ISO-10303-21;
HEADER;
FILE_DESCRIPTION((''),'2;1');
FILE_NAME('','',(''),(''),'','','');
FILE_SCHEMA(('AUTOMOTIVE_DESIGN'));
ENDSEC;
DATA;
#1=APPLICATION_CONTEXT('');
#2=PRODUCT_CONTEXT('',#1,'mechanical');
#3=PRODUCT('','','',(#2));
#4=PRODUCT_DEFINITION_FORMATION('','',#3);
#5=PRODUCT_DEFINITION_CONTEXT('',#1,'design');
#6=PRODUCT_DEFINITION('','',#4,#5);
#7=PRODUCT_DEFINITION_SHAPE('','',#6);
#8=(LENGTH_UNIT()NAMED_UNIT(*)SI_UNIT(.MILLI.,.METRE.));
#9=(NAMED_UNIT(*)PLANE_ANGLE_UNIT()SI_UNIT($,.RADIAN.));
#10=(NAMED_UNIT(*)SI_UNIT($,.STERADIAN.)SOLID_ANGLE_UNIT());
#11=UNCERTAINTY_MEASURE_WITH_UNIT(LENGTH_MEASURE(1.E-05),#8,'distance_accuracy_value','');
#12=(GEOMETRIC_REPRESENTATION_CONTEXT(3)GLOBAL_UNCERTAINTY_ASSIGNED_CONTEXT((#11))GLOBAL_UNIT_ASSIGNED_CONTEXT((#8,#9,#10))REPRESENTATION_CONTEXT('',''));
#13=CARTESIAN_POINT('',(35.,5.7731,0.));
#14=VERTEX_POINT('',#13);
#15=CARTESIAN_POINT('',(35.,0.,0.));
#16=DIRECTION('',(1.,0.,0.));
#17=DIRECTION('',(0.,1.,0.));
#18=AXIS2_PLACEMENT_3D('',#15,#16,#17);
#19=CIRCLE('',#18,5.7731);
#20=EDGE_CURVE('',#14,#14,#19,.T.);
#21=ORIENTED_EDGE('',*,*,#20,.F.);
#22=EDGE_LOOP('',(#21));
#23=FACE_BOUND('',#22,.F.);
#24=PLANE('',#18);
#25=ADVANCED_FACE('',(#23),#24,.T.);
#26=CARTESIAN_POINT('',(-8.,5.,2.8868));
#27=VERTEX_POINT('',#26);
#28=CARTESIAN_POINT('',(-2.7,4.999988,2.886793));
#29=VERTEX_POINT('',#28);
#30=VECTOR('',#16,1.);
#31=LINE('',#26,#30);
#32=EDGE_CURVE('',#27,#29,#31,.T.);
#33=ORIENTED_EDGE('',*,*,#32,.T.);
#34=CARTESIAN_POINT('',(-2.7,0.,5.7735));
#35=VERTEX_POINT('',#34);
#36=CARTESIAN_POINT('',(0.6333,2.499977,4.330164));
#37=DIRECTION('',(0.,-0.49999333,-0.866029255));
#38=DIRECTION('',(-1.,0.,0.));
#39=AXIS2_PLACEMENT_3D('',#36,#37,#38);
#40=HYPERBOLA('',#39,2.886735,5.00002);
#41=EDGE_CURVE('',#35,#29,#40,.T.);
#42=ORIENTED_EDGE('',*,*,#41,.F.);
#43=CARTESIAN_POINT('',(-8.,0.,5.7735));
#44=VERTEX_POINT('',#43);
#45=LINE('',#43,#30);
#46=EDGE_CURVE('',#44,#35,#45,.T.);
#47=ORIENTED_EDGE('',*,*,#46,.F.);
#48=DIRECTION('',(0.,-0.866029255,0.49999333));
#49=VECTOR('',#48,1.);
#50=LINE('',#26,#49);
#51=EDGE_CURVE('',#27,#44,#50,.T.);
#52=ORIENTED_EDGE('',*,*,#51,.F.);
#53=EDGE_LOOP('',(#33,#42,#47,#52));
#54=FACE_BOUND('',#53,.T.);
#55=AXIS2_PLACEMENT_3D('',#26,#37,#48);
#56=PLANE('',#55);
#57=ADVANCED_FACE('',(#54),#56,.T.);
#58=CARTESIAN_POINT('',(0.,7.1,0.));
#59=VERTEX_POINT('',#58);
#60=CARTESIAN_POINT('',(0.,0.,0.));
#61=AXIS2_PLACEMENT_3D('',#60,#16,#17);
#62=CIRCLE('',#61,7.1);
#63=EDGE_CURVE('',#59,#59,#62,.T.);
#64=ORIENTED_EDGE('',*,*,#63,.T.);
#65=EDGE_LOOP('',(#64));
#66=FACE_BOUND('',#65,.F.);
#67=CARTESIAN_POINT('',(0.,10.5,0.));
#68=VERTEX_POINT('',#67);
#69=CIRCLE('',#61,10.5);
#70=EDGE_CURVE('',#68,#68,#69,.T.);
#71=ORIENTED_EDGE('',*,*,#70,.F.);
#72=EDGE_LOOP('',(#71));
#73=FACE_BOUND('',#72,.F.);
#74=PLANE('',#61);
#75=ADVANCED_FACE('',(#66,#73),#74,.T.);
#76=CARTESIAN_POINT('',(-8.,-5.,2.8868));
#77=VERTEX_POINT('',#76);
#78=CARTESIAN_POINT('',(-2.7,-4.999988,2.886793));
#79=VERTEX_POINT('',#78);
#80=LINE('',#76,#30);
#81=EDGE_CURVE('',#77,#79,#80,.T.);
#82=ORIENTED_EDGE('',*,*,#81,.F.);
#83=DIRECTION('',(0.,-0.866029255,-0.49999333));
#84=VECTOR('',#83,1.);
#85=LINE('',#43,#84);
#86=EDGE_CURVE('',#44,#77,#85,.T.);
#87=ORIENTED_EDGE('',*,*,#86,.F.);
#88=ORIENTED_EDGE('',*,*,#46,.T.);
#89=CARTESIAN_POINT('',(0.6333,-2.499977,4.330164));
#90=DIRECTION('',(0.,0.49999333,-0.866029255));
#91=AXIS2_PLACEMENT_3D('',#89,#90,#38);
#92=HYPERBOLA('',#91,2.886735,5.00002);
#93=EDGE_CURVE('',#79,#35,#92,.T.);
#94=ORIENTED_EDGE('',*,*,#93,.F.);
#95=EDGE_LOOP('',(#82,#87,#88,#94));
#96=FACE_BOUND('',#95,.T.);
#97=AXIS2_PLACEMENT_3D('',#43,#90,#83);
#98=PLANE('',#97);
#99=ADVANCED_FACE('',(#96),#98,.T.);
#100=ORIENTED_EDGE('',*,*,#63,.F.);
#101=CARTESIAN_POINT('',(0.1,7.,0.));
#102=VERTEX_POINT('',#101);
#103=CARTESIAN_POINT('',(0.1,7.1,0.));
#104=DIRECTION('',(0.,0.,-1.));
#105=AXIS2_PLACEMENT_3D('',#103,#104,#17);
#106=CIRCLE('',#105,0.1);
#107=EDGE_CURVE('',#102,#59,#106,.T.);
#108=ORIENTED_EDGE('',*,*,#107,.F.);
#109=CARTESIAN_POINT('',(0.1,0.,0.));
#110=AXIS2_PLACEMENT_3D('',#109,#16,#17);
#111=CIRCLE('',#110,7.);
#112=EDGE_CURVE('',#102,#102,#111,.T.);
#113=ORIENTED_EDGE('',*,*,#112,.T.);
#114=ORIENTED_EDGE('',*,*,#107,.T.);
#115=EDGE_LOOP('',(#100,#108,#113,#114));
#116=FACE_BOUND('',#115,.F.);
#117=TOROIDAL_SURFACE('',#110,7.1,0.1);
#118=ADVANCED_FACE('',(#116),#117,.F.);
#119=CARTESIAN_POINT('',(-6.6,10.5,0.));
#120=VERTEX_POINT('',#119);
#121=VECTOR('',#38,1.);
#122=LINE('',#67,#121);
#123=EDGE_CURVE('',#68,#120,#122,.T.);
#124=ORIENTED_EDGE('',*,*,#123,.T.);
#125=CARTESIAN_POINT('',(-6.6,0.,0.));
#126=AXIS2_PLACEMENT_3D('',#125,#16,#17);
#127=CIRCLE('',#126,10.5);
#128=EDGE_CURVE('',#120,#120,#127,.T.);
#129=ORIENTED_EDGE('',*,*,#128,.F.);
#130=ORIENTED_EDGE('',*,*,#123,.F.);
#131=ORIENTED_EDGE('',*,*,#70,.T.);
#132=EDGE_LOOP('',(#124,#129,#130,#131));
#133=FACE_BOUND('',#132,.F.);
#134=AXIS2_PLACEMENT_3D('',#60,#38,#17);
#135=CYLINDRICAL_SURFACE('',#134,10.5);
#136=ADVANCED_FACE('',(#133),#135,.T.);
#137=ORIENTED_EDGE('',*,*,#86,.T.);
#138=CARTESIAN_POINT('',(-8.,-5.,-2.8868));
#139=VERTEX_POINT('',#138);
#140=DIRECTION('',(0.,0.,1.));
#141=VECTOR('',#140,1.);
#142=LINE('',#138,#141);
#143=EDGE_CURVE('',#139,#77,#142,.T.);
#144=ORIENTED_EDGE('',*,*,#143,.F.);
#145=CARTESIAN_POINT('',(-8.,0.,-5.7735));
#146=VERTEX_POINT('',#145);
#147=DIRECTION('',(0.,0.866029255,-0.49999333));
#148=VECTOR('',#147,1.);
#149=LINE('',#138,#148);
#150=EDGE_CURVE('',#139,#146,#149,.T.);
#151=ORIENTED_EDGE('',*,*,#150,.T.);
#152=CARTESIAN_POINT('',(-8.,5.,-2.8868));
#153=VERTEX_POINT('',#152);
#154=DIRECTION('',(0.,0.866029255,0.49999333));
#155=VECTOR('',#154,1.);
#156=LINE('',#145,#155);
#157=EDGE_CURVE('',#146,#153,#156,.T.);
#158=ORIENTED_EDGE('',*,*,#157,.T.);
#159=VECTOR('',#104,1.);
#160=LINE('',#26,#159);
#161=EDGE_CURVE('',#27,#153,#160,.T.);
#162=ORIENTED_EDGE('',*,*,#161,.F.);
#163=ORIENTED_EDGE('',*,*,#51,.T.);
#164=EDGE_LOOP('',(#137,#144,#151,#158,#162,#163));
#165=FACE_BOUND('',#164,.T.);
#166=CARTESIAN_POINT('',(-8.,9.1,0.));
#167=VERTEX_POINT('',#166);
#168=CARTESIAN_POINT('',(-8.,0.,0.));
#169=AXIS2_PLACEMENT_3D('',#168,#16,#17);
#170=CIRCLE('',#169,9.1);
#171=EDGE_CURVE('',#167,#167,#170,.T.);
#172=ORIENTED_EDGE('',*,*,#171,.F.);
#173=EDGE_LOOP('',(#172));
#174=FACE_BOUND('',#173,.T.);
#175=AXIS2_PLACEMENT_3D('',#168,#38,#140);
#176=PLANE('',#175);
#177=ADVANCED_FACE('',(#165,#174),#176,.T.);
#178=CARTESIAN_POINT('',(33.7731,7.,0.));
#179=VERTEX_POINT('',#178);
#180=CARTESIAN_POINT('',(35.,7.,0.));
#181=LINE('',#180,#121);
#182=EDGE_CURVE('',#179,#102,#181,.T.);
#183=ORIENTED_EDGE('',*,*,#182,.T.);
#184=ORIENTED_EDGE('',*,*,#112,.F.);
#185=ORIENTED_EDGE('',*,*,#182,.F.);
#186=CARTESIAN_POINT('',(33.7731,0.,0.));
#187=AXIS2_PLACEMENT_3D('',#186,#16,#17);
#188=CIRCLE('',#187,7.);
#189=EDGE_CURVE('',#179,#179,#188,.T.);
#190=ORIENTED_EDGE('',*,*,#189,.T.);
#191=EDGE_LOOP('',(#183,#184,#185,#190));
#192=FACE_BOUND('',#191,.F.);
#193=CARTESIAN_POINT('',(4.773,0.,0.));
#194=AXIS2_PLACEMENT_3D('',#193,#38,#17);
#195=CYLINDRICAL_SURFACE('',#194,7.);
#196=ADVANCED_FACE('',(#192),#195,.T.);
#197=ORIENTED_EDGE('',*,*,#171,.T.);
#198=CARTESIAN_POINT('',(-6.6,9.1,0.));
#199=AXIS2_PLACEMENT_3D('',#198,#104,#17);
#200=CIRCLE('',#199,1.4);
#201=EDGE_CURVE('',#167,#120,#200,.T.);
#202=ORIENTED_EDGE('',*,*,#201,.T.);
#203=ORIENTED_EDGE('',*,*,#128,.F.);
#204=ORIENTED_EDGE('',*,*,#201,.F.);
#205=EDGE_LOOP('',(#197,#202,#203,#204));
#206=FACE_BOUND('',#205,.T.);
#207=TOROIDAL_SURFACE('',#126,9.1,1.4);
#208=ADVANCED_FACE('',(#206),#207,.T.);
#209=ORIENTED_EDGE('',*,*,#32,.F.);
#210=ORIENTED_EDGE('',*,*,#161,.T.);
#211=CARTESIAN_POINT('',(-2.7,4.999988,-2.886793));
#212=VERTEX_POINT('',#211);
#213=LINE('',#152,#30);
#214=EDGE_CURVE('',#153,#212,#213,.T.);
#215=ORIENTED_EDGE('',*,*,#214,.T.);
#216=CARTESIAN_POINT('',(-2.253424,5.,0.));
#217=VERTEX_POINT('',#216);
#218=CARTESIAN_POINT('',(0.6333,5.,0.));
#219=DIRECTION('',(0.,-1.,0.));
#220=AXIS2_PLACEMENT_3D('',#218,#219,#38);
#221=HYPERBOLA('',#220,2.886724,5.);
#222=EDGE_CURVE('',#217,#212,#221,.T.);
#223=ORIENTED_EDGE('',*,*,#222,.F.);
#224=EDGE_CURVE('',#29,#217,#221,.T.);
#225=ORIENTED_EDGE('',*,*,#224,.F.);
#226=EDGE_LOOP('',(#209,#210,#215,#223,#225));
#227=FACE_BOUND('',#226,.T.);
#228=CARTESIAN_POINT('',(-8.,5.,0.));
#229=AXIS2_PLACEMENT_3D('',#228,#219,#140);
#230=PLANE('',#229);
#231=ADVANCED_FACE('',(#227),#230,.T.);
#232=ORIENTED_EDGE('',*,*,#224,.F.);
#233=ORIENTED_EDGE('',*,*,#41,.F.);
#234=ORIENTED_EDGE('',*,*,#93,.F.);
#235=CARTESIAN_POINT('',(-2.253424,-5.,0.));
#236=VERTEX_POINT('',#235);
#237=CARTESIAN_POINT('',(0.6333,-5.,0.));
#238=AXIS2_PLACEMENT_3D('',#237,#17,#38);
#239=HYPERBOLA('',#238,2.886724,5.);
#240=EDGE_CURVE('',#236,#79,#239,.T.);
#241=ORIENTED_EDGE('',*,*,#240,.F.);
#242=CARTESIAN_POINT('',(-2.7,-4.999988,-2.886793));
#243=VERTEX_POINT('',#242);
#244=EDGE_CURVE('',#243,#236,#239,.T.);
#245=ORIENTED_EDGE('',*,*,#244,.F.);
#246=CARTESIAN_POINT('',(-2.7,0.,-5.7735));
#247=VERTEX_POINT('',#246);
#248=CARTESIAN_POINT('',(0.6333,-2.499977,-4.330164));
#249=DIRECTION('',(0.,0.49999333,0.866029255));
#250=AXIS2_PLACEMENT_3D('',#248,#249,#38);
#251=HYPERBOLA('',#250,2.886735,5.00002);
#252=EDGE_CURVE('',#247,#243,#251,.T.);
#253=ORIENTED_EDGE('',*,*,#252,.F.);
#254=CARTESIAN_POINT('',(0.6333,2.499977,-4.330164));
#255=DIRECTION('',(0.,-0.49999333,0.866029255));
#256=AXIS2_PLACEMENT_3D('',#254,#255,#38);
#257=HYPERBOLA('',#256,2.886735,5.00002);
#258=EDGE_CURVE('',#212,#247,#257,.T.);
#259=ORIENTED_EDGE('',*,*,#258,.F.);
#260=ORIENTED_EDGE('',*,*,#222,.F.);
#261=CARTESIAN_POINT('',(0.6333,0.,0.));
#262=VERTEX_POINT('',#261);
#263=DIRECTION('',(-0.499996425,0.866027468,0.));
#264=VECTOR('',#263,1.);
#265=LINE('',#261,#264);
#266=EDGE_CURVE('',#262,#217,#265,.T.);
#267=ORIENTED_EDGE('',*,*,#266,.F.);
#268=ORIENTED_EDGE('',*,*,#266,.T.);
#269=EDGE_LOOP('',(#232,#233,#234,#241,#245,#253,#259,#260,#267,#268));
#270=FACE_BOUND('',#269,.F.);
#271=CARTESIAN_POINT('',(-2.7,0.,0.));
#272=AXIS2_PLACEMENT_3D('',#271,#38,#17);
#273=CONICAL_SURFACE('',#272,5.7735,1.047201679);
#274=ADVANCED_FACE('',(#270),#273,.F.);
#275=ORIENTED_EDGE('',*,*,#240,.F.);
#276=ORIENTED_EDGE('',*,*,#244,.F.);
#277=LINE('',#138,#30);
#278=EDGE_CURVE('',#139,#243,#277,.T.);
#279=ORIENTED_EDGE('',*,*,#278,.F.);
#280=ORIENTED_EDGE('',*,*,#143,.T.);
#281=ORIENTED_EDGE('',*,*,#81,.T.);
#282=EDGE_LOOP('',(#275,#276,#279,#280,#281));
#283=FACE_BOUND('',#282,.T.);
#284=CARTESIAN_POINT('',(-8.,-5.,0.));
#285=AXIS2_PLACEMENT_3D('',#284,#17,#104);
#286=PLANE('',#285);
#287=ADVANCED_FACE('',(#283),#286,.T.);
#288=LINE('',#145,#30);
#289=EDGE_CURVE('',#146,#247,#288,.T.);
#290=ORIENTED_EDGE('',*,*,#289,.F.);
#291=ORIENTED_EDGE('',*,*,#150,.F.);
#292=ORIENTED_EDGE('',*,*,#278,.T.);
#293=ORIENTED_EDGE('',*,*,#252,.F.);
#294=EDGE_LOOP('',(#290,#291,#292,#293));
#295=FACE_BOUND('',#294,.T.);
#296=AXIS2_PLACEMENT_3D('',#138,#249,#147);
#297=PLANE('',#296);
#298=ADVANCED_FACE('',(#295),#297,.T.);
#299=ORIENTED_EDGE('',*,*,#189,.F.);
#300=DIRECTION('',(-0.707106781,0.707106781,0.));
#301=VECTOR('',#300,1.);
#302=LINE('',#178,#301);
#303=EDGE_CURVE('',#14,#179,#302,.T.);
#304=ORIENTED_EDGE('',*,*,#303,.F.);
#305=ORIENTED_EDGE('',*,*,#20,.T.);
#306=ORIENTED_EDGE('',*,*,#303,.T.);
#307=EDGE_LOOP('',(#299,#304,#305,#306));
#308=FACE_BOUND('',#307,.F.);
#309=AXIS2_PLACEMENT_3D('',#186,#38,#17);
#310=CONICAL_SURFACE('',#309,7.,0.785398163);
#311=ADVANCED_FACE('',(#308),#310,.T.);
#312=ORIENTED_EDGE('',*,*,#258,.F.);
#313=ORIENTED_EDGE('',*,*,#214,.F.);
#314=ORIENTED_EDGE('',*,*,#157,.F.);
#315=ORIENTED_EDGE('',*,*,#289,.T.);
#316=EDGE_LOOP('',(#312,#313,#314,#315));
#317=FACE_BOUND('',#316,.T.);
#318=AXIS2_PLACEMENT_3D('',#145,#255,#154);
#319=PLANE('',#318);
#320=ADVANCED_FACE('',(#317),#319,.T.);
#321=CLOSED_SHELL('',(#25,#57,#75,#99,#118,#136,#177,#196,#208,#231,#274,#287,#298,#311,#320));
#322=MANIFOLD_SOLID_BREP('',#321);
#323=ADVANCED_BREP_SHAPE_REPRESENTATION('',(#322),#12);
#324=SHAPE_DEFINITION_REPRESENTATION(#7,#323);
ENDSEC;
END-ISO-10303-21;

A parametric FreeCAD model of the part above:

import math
import FreeCAD as App
import Part
import Sketcher
Q = App.Units.Quantity


def edges_at(feature, points):
    """Names of the edges that pass closest to the given points."""
    edges = feature.Shape.Edges
    near = lambda p: min(range(len(edges)), key=lambda i: edges[i].distToShape(Part.Vertex(*p))[0])
    return sorted({f"Edge{near(p) + 1}" for p in points})


def add_polygon(sketch, points):
    """Adds a closed chain of lines whose ends are joined by coincident constraints."""
    first, n = sketch.GeometryCount, len(points)
    for a, b in zip(points, points[1:] + points[:1]):
        sketch.addGeometry(Part.LineSegment(App.Vector(*a, 0), App.Vector(*b, 0)), False)
    for i in range(n):
        sketch.addConstraint(Sketcher.Constraint("Coincident", first + i, 2, first + (i + 1) % n, 1))

doc = App.newDocument("Part")
body = doc.addObject("PartDesign::Body", "Body")

# Sketch on XY plane
sketch1 = body.newObject("Sketcher::SketchObject", "Sketch")
sketch1.AttachmentSupport = (doc.getObject("XY_Plane"), [""])
sketch1.MapMode = "FlatFace"
add_polygon(sketch1, [(0.6, 0), (35, 0), (35, 7), (0, 7), (0, 10.5), (-8, 10.5), (-8, 5.8), (-2.7, 5.8)])  # lines 0-7
sketch1.addConstraint([
    Sketcher.Constraint("Horizontal", 0),
    Sketcher.Constraint("Vertical", 1),
    Sketcher.Constraint("Horizontal", 2),
    Sketcher.Constraint("Vertical", 3),
    Sketcher.Constraint("Horizontal", 4),
    Sketcher.Constraint("Vertical", 5),
    Sketcher.Constraint("Horizontal", 6),
    Sketcher.Constraint("PointOnObject", 0, 2, -1),
    Sketcher.Constraint("PointOnObject", 2, 2, -2),
    Sketcher.Constraint("DistanceX", 2, 2, 2, 1, Q("35 mm")),
    Sketcher.Constraint("DistanceX", 4, 2, 4, 1, Q("8 mm")),
    Sketcher.Constraint("Angle", 7, Q("-60.0002 deg")),
    Sketcher.Constraint("DistanceX", 6, 1, 6, 2, Q("5.3 mm")),
    Sketcher.Constraint("DistanceY", 1, 1, 1, 2, Q("7 mm")),
    Sketcher.Constraint("DistanceY", 3, 1, 3, 2, Q("3.5 mm")),
    Sketcher.Constraint("DistanceY", 5, 2, 2, 2, Q("1.2265 mm")),
])
revolution = body.newObject("PartDesign::Revolution", "Revolution")
revolution.Profile = sketch1
revolution.ReferenceAxis = (sketch1, ["H_Axis"])
revolution.Angle = 360

# Sketch on YZ plane
sketch2 = body.newObject("Sketcher::SketchObject", "Sketch001")
sketch2.AttachmentSupport = (doc.getObject("YZ_Plane"), [""])
sketch2.MapMode = "FlatFace"
sketch2.AttachmentOffset = App.Placement(App.Vector(0, 0, -8), App.Rotation())
sketch2.addGeometry([
    Part.LineSegment(App.Vector(5, 3, 0), App.Vector(0, 6, 0)),  # 0
    Part.ArcOfCircle(Part.Circle(App.Vector(0, 0, 0), App.Vector(0, 0, 1), 6), math.radians(30), math.radians(90)),  # 1
    Part.ArcOfCircle(Part.Circle(App.Vector(0, 0, 0), App.Vector(0, 0, 1), 6), math.radians(90), math.radians(150)),  # 2
    Part.LineSegment(App.Vector(0, 6, 0), App.Vector(-5, 3, 0)),  # 3
    Part.ArcOfCircle(Part.Circle(App.Vector(0, 0, 0), App.Vector(0, 0, 1), 6), math.radians(-30), math.radians(30)),  # 4
    Part.LineSegment(App.Vector(5, 3, 0), App.Vector(5, -3, 0)),  # 5
    Part.LineSegment(App.Vector(-5, 3, 0), App.Vector(-5, -3, 0)),  # 6
    Part.ArcOfCircle(Part.Circle(App.Vector(0, 0, 0), App.Vector(0, 0, 1), 6), math.radians(150), math.radians(210)),  # 7
    Part.LineSegment(App.Vector(-5, -3, 0), App.Vector(0, -6, 0)),  # 8
    Part.ArcOfCircle(Part.Circle(App.Vector(0, 0, 0), App.Vector(0, 0, 1), 6), math.radians(-150), math.radians(-90)),  # 9
    Part.ArcOfCircle(Part.Circle(App.Vector(0, 0, 0), App.Vector(0, 0, 1), 6), math.radians(-90), math.radians(-30)),  # 10
    Part.LineSegment(App.Vector(0, -6, 0), App.Vector(5, -3, 0)),  # 11
], False)
sketch2.addConstraint([
    Sketcher.Constraint("Coincident", 0, 1, 1, 1),
    Sketcher.Constraint("Coincident", 1, 2, 0, 2),
    Sketcher.Constraint("Coincident", 2, 1, 3, 1),
    Sketcher.Constraint("Coincident", 3, 2, 2, 2),
    Sketcher.Constraint("Coincident", 4, 1, 5, 2),
    Sketcher.Constraint("Coincident", 5, 1, 4, 2),
    Sketcher.Constraint("Coincident", 6, 1, 7, 1),
    Sketcher.Constraint("Coincident", 7, 2, 6, 2),
    Sketcher.Constraint("Coincident", 8, 1, 9, 1),
    Sketcher.Constraint("Coincident", 9, 2, 8, 2),
    Sketcher.Constraint("Coincident", 10, 1, 11, 1),
    Sketcher.Constraint("Coincident", 11, 2, 10, 2),
    Sketcher.Constraint("Vertical", 5),
    Sketcher.Constraint("Vertical", 6),
    Sketcher.Constraint("Coincident", 1, 3, -1, 1),
    Sketcher.Constraint("Coincident", 2, 3, -1, 1),
    Sketcher.Constraint("Coincident", 4, 3, -1, 1),
    Sketcher.Constraint("Coincident", 7, 3, -1, 1),
    Sketcher.Constraint("Coincident", 9, 3, -1, 1),
    Sketcher.Constraint("Coincident", 10, 3, -1, 1),
    Sketcher.Constraint("Coincident", 2, 1, 1, 2),
    Sketcher.Constraint("Coincident", 5, 1, 0, 1),
    Sketcher.Constraint("Coincident", 6, 1, 3, 2),
    Sketcher.Constraint("Coincident", 8, 1, 7, 2),
    Sketcher.Constraint("Coincident", 10, 1, 9, 2),
    Sketcher.Constraint("PointOnObject", 1, 2, -2),
    Sketcher.Constraint("PointOnObject", 9, 2, -2),
    Sketcher.Constraint("Parallel", 0, 8),
    Sketcher.Constraint("Parallel", 3, 11),
    Sketcher.Constraint("Angle", 0, Q("150.0004 deg")),
    Sketcher.Constraint("DistanceX", -1, 1, 0, 1, Q("5 mm")),
])
pad1 = body.newObject("PartDesign::Pad", "Pad")
pad1.Profile = sketch2
pad1.Length = 5.7466
doc.recompute()

fillet = body.newObject("PartDesign::Fillet", "Fillet")
fillet.Base = (pad1, edges_at(pad1, [(-8, -10.5, 0)]))
fillet.Radius = 1.4
doc.recompute()

chamfer = body.newObject("PartDesign::Chamfer", "Chamfer")
chamfer.Base = (fillet, edges_at(fillet, [(35, -7, 0)]))
chamfer.ChamferType = "Two distances"
chamfer.Size = 1.2269
chamfer.Size2 = 1.2269
doc.recompute()

fillet2 = body.newObject("PartDesign::Fillet", "Fillet001")
fillet2.Base = (chamfer, edges_at(chamfer, [(0, -7, 0)]))
fillet2.Radius = 0.1

doc.recompute()
